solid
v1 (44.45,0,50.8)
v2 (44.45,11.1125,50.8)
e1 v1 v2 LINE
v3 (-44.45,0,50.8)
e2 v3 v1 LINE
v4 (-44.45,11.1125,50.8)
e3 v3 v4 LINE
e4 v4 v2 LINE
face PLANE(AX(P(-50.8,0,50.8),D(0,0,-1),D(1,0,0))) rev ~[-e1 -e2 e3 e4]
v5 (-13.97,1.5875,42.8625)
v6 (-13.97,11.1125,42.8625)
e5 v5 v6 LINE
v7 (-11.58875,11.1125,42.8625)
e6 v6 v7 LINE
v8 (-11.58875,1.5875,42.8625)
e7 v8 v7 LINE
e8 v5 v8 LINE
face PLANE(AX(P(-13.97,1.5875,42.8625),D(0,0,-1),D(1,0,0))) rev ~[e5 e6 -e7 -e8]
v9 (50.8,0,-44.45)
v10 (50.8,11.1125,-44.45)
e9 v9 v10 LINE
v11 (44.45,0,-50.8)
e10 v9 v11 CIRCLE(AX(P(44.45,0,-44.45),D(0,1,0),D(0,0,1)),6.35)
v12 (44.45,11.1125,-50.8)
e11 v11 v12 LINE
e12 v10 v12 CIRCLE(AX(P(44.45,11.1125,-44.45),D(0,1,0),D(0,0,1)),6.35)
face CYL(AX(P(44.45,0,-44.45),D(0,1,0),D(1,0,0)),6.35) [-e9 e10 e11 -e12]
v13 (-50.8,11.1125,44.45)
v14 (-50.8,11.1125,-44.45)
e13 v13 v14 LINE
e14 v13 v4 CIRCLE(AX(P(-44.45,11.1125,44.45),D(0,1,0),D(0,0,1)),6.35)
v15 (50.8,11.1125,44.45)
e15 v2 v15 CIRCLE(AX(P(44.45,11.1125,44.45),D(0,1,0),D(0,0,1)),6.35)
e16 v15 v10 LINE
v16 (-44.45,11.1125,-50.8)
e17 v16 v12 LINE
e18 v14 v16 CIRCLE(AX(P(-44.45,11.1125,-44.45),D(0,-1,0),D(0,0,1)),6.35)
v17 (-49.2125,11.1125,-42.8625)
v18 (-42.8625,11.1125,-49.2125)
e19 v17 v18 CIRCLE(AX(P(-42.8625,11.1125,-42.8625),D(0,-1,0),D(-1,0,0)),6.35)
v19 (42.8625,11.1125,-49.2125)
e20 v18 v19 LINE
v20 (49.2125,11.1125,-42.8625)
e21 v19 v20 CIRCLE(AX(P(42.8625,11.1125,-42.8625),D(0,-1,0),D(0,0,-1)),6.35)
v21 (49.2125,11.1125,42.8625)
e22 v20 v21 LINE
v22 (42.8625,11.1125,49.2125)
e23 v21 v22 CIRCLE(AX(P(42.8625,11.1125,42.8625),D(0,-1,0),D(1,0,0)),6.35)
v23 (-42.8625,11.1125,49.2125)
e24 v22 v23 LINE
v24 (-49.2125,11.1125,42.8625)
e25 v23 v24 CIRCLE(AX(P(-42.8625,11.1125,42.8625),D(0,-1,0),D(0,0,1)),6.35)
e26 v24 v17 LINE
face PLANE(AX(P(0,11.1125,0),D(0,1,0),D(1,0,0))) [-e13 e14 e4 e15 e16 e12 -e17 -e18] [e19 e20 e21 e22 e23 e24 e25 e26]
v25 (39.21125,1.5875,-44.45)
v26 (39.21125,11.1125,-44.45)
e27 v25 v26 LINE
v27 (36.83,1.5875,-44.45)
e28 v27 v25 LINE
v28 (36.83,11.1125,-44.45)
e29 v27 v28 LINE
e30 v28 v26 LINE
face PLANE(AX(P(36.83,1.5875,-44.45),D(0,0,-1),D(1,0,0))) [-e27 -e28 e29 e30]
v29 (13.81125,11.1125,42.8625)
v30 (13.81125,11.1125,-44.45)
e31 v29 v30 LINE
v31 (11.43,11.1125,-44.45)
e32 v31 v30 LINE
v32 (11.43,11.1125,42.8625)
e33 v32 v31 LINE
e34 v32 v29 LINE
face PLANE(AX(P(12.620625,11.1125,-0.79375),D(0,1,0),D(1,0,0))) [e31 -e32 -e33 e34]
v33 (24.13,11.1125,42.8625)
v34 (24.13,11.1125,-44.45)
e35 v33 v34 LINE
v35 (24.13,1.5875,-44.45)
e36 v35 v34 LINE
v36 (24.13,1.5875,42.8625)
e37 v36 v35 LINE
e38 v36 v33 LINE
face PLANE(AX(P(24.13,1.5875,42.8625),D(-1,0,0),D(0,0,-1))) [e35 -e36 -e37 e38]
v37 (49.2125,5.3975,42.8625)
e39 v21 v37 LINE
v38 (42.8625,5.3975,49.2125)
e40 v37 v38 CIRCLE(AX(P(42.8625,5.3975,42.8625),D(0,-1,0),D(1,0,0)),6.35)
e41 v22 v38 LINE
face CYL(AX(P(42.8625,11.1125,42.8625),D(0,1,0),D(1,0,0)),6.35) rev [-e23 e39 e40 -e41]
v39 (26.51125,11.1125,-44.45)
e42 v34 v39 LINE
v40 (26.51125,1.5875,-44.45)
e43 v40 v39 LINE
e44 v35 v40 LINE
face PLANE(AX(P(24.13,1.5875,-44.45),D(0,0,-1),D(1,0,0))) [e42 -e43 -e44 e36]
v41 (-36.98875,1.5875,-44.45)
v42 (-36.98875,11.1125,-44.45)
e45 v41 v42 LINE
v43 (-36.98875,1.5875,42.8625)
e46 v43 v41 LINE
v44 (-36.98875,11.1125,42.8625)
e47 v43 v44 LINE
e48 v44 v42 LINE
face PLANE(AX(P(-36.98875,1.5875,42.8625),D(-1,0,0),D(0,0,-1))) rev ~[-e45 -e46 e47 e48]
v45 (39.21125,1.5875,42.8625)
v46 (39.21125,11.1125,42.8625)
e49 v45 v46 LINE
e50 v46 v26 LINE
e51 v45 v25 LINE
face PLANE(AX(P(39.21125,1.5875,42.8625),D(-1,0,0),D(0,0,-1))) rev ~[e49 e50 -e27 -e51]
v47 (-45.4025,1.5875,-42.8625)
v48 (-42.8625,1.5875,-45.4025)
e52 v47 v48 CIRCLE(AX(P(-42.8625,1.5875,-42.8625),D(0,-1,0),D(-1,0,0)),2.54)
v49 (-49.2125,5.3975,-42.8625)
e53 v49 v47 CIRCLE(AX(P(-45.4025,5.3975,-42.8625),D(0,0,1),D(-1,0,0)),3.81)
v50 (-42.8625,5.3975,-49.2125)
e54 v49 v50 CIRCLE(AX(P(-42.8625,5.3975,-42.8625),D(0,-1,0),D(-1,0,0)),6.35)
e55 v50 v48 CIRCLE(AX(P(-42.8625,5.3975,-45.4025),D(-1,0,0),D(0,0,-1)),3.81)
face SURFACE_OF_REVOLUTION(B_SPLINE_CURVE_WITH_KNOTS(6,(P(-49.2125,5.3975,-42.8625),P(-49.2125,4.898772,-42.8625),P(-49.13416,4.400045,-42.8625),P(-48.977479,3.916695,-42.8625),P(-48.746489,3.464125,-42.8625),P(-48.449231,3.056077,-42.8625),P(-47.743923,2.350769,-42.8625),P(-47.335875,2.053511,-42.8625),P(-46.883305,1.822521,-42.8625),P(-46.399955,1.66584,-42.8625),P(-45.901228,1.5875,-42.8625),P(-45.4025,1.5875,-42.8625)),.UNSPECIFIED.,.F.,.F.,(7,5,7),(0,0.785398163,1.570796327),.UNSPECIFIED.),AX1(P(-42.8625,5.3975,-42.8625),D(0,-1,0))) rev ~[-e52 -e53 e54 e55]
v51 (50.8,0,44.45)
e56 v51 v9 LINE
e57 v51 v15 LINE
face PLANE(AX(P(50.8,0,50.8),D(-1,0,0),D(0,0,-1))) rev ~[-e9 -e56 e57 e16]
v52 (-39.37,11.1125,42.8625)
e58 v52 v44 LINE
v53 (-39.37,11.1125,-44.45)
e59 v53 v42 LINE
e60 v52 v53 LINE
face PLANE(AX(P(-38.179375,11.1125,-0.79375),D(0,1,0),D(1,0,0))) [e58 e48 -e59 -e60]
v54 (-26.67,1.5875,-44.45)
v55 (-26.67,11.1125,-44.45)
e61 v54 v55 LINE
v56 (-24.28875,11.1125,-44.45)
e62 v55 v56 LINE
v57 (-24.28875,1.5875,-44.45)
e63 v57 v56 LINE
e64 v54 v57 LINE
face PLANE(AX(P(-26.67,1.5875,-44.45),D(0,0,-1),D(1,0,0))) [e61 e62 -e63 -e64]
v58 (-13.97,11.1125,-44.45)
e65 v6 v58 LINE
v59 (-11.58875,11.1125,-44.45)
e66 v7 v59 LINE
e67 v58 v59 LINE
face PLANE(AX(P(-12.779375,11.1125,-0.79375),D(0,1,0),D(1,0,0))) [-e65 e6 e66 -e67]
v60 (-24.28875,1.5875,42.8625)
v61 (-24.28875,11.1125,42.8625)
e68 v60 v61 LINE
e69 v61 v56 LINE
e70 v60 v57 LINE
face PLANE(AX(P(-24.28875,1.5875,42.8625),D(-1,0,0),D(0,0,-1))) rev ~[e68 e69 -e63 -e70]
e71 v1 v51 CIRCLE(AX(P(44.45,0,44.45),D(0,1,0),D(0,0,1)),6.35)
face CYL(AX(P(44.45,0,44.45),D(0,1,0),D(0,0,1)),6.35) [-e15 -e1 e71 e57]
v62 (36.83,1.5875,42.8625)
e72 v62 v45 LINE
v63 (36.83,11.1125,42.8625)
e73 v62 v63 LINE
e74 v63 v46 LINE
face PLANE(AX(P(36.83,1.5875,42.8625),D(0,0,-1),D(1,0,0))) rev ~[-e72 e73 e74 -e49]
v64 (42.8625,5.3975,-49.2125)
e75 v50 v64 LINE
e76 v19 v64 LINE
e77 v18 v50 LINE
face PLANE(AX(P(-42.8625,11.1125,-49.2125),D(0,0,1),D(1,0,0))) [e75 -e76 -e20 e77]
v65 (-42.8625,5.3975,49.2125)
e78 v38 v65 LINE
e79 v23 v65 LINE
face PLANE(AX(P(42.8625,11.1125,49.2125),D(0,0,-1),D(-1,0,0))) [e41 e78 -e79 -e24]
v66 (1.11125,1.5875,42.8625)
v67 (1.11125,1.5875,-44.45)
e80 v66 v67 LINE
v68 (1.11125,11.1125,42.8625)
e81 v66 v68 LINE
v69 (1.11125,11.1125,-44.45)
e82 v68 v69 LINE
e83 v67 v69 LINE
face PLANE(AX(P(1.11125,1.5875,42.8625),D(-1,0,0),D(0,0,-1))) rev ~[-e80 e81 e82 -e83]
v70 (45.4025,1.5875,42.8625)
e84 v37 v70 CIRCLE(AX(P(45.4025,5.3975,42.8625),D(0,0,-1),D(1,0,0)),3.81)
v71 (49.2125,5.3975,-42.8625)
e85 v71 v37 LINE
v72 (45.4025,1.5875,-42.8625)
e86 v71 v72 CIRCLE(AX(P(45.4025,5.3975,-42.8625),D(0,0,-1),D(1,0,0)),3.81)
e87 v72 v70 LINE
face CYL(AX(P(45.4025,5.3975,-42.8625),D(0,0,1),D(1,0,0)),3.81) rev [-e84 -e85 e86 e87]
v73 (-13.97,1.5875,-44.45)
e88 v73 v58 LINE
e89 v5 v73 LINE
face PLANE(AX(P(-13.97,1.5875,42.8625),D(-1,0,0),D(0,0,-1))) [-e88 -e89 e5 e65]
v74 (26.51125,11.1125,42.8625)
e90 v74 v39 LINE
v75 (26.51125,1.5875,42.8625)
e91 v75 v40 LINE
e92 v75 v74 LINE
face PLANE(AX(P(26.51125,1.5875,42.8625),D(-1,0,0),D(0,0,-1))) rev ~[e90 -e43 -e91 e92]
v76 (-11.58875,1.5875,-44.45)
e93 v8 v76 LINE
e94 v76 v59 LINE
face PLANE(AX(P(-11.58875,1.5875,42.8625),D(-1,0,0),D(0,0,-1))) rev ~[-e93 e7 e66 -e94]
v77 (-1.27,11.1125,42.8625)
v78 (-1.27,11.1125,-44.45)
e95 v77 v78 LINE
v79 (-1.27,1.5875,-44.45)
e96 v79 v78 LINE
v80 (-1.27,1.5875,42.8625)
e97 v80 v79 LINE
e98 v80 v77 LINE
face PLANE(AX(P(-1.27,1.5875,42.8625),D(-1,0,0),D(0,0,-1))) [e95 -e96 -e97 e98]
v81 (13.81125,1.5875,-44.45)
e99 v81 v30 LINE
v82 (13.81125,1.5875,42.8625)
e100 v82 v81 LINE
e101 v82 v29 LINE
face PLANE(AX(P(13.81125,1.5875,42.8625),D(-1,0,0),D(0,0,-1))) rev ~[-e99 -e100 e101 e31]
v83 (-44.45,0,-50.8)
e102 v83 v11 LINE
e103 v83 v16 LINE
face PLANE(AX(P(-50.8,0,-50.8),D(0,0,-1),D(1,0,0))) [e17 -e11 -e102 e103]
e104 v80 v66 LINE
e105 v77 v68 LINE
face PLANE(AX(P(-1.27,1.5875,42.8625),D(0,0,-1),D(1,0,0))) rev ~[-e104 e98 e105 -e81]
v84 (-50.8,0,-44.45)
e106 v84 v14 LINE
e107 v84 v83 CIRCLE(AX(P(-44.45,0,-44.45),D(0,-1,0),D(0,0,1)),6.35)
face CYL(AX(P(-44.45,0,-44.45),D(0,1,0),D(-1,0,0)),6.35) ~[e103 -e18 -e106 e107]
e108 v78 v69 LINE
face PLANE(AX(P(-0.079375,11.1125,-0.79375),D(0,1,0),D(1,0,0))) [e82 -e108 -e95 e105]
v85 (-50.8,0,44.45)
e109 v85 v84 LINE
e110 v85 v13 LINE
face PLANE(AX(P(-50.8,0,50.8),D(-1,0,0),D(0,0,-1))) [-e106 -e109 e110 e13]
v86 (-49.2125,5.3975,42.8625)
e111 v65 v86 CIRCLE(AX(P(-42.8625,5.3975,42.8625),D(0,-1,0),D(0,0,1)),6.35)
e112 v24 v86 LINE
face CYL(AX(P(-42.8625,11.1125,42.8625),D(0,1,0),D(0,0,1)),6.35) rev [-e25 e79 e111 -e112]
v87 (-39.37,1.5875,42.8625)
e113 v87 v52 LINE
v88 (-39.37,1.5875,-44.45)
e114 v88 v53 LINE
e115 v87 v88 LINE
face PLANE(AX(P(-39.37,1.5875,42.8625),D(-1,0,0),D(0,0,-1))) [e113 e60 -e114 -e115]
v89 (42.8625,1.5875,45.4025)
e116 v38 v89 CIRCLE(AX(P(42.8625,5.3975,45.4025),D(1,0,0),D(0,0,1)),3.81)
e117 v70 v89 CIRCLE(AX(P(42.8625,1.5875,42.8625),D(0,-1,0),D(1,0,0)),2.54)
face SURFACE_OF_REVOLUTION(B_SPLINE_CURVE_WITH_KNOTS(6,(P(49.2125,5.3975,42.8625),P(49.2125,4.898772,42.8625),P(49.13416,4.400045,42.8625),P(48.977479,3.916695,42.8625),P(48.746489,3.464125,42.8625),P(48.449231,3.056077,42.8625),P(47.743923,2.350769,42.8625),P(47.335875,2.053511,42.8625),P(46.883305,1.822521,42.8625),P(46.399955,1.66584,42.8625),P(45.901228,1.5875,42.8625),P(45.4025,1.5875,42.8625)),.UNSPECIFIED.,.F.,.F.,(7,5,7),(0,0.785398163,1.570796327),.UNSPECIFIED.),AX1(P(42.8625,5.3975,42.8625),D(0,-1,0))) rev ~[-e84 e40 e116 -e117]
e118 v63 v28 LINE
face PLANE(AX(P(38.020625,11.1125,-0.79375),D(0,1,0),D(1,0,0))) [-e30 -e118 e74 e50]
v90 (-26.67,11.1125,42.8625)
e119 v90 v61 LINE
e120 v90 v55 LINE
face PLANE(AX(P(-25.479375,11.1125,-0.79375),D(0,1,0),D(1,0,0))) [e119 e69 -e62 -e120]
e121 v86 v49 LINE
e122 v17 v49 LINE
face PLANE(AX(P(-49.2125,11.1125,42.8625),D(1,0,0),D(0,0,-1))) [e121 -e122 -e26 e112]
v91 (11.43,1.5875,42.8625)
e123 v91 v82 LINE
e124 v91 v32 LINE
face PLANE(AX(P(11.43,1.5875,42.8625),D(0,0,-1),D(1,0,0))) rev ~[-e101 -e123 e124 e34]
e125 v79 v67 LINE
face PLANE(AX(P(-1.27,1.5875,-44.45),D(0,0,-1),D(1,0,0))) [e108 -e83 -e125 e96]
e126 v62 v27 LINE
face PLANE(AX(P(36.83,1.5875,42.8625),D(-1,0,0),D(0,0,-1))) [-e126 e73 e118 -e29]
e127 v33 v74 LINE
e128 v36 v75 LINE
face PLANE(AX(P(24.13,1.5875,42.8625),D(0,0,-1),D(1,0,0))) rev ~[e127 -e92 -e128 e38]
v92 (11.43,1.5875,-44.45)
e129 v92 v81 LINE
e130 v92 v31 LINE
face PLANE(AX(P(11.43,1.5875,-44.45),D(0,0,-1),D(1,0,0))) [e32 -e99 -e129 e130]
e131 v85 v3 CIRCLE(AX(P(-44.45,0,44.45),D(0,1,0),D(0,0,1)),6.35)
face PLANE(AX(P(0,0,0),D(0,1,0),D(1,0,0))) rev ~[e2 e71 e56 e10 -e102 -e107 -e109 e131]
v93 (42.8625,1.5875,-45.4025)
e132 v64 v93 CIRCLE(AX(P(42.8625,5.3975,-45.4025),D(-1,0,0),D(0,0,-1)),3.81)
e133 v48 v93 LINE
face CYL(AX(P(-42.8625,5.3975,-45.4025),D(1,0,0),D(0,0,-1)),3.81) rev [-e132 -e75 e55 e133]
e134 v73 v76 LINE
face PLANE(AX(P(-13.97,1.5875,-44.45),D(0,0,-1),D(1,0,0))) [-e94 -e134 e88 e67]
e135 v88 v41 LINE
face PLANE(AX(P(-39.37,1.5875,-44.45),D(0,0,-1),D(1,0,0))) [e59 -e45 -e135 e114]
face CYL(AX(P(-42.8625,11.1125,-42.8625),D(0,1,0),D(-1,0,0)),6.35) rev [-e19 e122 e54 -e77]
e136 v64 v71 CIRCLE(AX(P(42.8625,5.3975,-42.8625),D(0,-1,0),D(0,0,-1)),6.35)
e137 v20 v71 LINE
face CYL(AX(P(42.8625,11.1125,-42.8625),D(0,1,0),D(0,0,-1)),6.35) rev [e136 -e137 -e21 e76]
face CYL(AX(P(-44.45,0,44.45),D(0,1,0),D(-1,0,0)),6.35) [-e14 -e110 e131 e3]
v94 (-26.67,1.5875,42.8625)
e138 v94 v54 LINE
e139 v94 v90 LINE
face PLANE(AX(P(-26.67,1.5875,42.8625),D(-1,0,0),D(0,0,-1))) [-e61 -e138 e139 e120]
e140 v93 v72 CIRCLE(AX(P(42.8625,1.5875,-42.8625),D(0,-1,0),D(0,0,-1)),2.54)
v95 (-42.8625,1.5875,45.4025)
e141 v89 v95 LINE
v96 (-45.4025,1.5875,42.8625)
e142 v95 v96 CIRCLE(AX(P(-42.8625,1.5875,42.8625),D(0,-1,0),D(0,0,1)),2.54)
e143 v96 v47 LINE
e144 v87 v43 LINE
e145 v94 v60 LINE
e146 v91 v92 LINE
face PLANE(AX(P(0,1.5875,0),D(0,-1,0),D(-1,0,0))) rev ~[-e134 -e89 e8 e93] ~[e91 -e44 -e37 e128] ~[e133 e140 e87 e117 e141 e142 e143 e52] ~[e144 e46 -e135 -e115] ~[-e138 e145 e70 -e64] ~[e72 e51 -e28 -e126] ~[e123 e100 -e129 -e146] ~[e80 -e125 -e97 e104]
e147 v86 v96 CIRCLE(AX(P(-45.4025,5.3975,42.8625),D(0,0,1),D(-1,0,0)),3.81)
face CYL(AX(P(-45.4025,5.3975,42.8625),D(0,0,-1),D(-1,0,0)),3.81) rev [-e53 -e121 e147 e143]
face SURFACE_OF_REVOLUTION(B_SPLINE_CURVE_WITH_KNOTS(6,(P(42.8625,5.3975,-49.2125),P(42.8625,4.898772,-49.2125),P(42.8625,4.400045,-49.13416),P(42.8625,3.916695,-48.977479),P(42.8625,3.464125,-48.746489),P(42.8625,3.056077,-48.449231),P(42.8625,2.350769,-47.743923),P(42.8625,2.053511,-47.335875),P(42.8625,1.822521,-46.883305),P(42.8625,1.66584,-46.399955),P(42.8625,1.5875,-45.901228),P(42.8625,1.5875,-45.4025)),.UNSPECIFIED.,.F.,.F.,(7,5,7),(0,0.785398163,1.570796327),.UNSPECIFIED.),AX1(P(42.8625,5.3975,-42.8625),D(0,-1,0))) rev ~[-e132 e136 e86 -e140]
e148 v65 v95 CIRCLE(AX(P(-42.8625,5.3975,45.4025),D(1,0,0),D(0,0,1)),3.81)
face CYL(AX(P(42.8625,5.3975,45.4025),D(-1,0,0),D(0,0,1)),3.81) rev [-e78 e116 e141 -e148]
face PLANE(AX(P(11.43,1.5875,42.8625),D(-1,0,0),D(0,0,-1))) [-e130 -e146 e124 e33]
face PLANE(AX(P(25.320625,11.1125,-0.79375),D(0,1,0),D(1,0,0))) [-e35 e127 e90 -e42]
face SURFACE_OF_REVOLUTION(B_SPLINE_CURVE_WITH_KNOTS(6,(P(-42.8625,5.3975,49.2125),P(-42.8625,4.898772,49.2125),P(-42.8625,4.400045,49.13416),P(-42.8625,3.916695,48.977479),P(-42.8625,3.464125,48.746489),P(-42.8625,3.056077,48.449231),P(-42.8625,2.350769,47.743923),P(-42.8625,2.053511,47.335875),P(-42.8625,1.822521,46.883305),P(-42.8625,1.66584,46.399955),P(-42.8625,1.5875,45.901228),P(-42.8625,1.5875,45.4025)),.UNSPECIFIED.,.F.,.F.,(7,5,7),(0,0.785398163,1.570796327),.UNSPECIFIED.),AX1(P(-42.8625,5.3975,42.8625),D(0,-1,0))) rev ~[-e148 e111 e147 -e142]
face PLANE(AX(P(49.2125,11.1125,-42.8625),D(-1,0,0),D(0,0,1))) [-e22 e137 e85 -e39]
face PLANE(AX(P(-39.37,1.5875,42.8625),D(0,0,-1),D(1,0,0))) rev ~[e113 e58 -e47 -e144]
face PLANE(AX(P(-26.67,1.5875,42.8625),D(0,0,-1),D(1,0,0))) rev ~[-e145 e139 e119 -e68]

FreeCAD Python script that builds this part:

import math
import FreeCAD as App
import Part
import Sketcher
from FreeCAD import Vector
Q = App.Units.Quantity


def edges_at(feature, points):
    """Names of the edges that pass closest to the given points."""
    edges = feature.Shape.Edges
    near = lambda p: min(range(len(edges)), key=lambda i: edges[i].distToShape(Part.Vertex(*p))[0])
    return sorted({f"Edge{near(p) + 1}" for p in points})

doc = App.newDocument("Part")
body = doc.addObject("PartDesign::Body", "Body")

# Sketch on XZ plane
sketch1 = doc.addObject("Sketcher::SketchObject", "Sketch")
body.addObject(sketch1)
sketch1.AttachmentSupport = (doc.XZ_Plane, [""])
sketch1.MapMode = "FlatFace"
sketch1.addGeometry(Part.LineSegment(Vector(-51, -51, 0), Vector(-51, 51, 0)), False)
sketch1.addGeometry(Part.LineSegment(Vector(-51, 51, 0), Vector(51, 51, 0)), False)
sketch1.addGeometry(Part.LineSegment(Vector(51, 51, 0), Vector(51, -51, 0)), False)
sketch1.addGeometry(Part.LineSegment(Vector(51, -51, 0), Vector(-51, -51, 0)), False)
sketch1.addConstraint(Sketcher.Constraint("Coincident", 0, 2, 1, 1))
sketch1.addConstraint(Sketcher.Constraint("Coincident", 1, 2, 2, 1))
sketch1.addConstraint(Sketcher.Constraint("Coincident", 2, 2, 3, 1))
sketch1.addConstraint(Sketcher.Constraint("Coincident", 3, 2, 0, 1))
sketch1.addConstraint(Sketcher.Constraint("Vertical", 0))
sketch1.addConstraint(Sketcher.Constraint("Horizontal", 1))
sketch1.addConstraint(Sketcher.Constraint("Vertical", 2))
sketch1.addConstraint(Sketcher.Constraint("Horizontal", 3))
sketch1.addConstraint(Sketcher.Constraint("Symmetric", 0, 2, 2, 2, -1, 1))
sketch1.addConstraint(Sketcher.Constraint("Equal", 3, 0))
sketch1.addConstraint(Sketcher.Constraint("DistanceX", 1, 1, 1, 2, Q("4 in")))
pad1 = doc.addObject("PartDesign::Pad", "Pad")
body.addObject(pad1)
pad1.Profile = sketch1
pad1.Length = Q("0.4375 in")
pad1.Reversed = True
doc.recompute()

fillet = doc.addObject("PartDesign::Fillet", "Fillet")
body.addObject(fillet)
fillet.Base = (pad1, edges_at(pad1, [
    (50.8, 5.556, 50.8),
    (-50.8, 5.556, 50.8),
    (-50.8, 5.556, -50.8),
    (50.8, 5.556, -50.8),
]))
fillet.Radius = Q("0.25 in")

# Sketch on XZ plane
sketch2 = doc.addObject("Sketcher::SketchObject", "Sketch001")
body.addObject(sketch2)
sketch2.AttachmentSupport = (doc.XZ_Plane, [""])
sketch2.MapMode = "FlatFace"
sketch2.AttachmentOffset = App.Placement(Vector(0, 0, -0.4375 * 25.4), App.Rotation())
sketch2.addGeometry(Part.LineSegment(Vector(43, -49, 0), Vector(-43, -49, 0)), False)
sketch2.addGeometry(Part.ArcOfCircle(Part.Circle(Vector(-43, -43, 0), Vector(0, 0, 1), 6), math.radians(180), math.radians(270)), False)
sketch2.addGeometry(Part.LineSegment(Vector(-49, -43, 0), Vector(-49, 43, 0)), False)
sketch2.addGeometry(Part.ArcOfCircle(Part.Circle(Vector(-43, 43, 0), Vector(0, 0, 1), 6), math.radians(90), math.radians(180)), False)
sketch2.addGeometry(Part.LineSegment(Vector(-43, 49, 0), Vector(43, 49, 0)), False)
sketch2.addGeometry(Part.ArcOfCircle(Part.Circle(Vector(43, 43, 0), Vector(0, 0, 1), 6), math.radians(0), math.radians(90)), False)
sketch2.addGeometry(Part.LineSegment(Vector(49, 43, 0), Vector(49, -43, 0)), False)
sketch2.addGeometry(Part.ArcOfCircle(Part.Circle(Vector(43, -43, 0), Vector(0, 0, 1), 6), math.radians(-90), math.radians(0)), False)
sketch2.addConstraint(Sketcher.Constraint("Tangent", 0, 2, 1, 2))
sketch2.addConstraint(Sketcher.Constraint("Tangent", 1, 1, 2, 1))
sketch2.addConstraint(Sketcher.Constraint("Tangent", 2, 2, 3, 2))
sketch2.addConstraint(Sketcher.Constraint("Tangent", 3, 1, 4, 1))
sketch2.addConstraint(Sketcher.Constraint("Tangent", 4, 2, 5, 2))
sketch2.addConstraint(Sketcher.Constraint("Tangent", 5, 1, 6, 1))
sketch2.addConstraint(Sketcher.Constraint("Tangent", 6, 2, 7, 2))
sketch2.addConstraint(Sketcher.Constraint("Tangent", 7, 1, 0, 1))
sketch2.addConstraint(Sketcher.Constraint("Horizontal", 0))
sketch2.addConstraint(Sketcher.Constraint("Vertical", 2))
sketch2.addConstraint(Sketcher.Constraint("Horizontal", 4))
sketch2.addConstraint(Sketcher.Constraint("Vertical", 6))
sketch2.addConstraint(Sketcher.Constraint("Equal", 1, 3))
sketch2.addConstraint(Sketcher.Constraint("Equal", 3, 5))
sketch2.addConstraint(Sketcher.Constraint("Equal", 5, 7))
sketch2.addConstraint(Sketcher.Constraint("Symmetric", 1, 3, 5, 3, -1, 1))
sketch2.addConstraint(Sketcher.Constraint("Equal", 4, 2))
sketch2.addConstraint(Sketcher.Constraint("Radius", 1, Q("0.25 in")))
sketch2.addConstraint(Sketcher.Constraint("DistanceX", 0, 2, 0, 1, Q("3.375 in")))
pocket1 = doc.addObject("PartDesign::Pocket", "Pocket")
body.addObject(pocket1)
pocket1.Profile = sketch2
pocket1.Length = Q("0.375 in")
pocket1.Reversed = True

# Sketch on XZ plane
sketch3 = doc.addObject("Sketcher::SketchObject", "Sketch002")
body.addObject(sketch3)
sketch3.AttachmentSupport = (doc.XZ_Plane, [""])
sketch3.MapMode = "FlatFace"
sketch3.AttachmentOffset = App.Placement(Vector(0, 0, -0.0625 * 25.4), App.Rotation())
sketch3.addGeometry(Part.LineSegment(Vector(-39.4, -44.5, 0), Vector(-39.4, 42.9, 0)), False)
sketch3.addGeometry(Part.LineSegment(Vector(-39.4, 42.9, 0), Vector(-37, 42.9, 0)), False)
sketch3.addGeometry(Part.LineSegment(Vector(-37, 42.9, 0), Vector(-37, -44.5, 0)), False)
sketch3.addGeometry(Part.LineSegment(Vector(-37, -44.5, 0), Vector(-39.4, -44.5, 0)), False)
sketch3.addConstraint(Sketcher.Constraint("Coincident", 0, 2, 1, 1))
sketch3.addConstraint(Sketcher.Constraint("Coincident", 1, 2, 2, 1))
sketch3.addConstraint(Sketcher.Constraint("Coincident", 2, 2, 3, 1))
sketch3.addConstraint(Sketcher.Constraint("Coincident", 3, 2, 0, 1))
sketch3.addConstraint(Sketcher.Constraint("Vertical", 0))
sketch3.addConstraint(Sketcher.Constraint("Horizontal", 1))
sketch3.addConstraint(Sketcher.Constraint("Vertical", 2))
sketch3.addConstraint(Sketcher.Constraint("Horizontal", 3))
sketch3.addConstraint(Sketcher.Constraint("DistanceX", 1, 1, 1, 2, Q("0.09375 in")))
sketch3.addConstraint(Sketcher.Constraint("DistanceY", 0, 1, 0, 2, Q("3.4375 in")))
sketch3.addConstraint(Sketcher.Constraint("DistanceX", 0, 2, -1, 1, Q("1.55 in")))
sketch3.addConstraint(Sketcher.Constraint("DistanceY", 2, 2, -1, 1, Q("1.75 in")))
pad2 = doc.addObject("PartDesign::Pad", "Pad001")
body.addObject(pad2)
pad2.Profile = sketch3
pad2.Length = Q("0.375 in")
pad2.Reversed = True
doc.recompute()

linearpattern = doc.addObject("PartDesign::LinearPattern", "LinearPattern")
body.addObject(linearpattern)
linearpattern.Originals = [pad2]
linearpattern.Direction = (doc.X_Axis, [""])
linearpattern.Mode = "offset"
linearpattern.Offset = Q("0.5 in")
linearpattern.Occurrences = 7
body.Tip = linearpattern
doc.recompute()

fillet2 = doc.addObject("PartDesign::Fillet", "Fillet001")
body.addObject(fillet2)
fillet2.Base = (linearpattern, edges_at(linearpattern, [
    (-47.353, 1.587, 47.353),
    (-49.212, 1.587, 0),
    (-47.353, 1.587, -47.353),
    (0, 1.587, -49.212),
    (47.353, 1.587, -47.353),
    (49.212, 1.587, 0),
    (47.353, 1.587, 47.353),
    (0, 1.587, 49.212),
]))
fillet2.Radius = Q("0.15 in")

doc.recompute()
